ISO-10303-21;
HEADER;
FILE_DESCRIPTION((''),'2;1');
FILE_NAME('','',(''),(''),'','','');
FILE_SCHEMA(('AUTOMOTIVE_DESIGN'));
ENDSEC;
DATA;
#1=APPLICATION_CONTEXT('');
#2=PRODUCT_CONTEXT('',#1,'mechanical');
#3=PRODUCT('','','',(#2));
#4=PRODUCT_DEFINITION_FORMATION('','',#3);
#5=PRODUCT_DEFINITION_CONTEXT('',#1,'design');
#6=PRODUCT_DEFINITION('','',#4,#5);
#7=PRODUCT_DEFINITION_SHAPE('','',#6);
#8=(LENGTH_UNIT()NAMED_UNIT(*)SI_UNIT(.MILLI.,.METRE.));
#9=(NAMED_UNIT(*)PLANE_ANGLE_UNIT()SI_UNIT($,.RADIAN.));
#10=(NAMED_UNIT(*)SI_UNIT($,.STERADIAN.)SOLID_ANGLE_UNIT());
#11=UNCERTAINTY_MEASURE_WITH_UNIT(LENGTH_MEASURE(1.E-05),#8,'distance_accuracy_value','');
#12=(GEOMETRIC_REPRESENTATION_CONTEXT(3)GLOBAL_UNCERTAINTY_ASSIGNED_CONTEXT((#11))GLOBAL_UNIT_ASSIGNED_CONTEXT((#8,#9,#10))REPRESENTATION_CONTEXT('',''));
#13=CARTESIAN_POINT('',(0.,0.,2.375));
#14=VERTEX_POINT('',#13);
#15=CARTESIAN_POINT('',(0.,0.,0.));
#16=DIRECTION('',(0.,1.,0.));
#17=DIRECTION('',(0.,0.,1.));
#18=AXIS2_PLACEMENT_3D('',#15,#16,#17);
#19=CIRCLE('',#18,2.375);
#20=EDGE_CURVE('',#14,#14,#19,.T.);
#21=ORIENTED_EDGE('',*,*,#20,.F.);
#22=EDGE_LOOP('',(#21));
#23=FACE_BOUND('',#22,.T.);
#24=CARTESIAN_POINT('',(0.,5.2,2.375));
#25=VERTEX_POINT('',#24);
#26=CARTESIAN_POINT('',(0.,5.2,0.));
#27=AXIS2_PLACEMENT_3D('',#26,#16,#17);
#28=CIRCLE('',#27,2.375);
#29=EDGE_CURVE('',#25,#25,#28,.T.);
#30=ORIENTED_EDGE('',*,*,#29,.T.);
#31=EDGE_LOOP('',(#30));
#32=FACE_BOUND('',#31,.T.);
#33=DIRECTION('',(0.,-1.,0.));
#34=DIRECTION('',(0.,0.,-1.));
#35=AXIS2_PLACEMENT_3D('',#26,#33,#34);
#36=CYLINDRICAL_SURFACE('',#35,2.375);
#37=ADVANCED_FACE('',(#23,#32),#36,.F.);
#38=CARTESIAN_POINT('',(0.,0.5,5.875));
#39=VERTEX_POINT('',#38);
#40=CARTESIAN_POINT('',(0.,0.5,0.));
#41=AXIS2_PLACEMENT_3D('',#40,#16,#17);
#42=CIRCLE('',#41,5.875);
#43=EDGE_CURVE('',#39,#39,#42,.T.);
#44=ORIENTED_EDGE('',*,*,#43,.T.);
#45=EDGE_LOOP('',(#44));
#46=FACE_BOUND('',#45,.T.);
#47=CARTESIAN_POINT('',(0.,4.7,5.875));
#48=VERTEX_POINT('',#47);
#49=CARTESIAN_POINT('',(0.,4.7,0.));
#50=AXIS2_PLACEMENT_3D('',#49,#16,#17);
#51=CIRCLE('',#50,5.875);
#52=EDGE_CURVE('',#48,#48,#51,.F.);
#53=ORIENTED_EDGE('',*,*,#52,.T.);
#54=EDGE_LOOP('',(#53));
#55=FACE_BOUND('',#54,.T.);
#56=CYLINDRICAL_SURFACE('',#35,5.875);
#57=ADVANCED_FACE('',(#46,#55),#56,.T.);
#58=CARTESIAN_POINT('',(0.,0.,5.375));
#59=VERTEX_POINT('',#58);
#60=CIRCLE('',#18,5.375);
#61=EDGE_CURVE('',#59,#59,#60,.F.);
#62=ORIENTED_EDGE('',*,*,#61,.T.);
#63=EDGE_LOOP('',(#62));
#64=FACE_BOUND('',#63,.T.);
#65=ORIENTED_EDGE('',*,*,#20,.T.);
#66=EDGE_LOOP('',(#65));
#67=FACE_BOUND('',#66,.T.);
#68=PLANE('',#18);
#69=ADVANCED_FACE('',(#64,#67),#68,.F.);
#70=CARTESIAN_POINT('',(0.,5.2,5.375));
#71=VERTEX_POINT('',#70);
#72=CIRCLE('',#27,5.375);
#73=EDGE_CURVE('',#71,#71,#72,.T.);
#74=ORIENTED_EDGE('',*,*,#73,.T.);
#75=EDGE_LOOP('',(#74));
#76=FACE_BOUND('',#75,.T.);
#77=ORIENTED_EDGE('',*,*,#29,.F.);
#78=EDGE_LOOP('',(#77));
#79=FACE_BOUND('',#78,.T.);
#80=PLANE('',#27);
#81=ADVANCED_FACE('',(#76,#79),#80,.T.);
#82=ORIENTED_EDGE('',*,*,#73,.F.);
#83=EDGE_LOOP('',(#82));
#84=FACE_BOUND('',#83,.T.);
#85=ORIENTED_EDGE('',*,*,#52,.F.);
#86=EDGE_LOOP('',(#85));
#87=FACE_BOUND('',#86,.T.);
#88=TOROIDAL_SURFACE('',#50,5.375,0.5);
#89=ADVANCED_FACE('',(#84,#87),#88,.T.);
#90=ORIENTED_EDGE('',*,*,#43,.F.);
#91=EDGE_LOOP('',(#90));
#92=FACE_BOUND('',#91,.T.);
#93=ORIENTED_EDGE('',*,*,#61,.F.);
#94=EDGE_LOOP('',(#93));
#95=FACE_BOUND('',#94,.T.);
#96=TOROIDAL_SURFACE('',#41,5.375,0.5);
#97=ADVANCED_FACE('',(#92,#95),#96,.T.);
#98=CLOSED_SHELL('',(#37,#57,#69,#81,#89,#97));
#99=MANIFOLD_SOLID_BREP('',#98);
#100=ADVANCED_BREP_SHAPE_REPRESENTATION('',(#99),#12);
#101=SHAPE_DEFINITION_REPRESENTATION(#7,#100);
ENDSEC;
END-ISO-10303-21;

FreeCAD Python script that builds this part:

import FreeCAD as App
import Part
import Sketcher
from FreeCAD import Vector
Q = App.Units.Quantity


def edges_at(feature, points):
    """Names of the edges that pass closest to the given points."""
    edges = feature.Shape.Edges
    near = lambda p: min(range(len(edges)), key=lambda i: edges[i].distToShape(Part.Vertex(*p))[0])
    return sorted({f"Edge{near(p) + 1}" for p in points})

doc = App.newDocument("Part")
body = doc.addObject("PartDesign::Body", "Body")

# Sketch on XZ plane
sketch1 = body.newObject("Sketcher::SketchObject", "Sketch")
sketch1.AttachmentSupport = (doc.getObject("XZ_Plane"), [""])
sketch1.MapMode = "FlatFace"
sketch1.addGeometry([
    Part.Circle(Vector(0, 0, 0), Vector(0, 0, 1), 5.9),
    Part.Circle(Vector(0, 0, 0), Vector(0, 0, 1), 2.4),
], False)
sketch1.addConstraint([
    Sketcher.Constraint("Coincident", 0, 3, -1, 1),
    Sketcher.Constraint("Coincident", 1, 3, -1, 1),
    Sketcher.Constraint("Diameter", 0, Q("11.75 mm")),
    Sketcher.Constraint("Diameter", 1, Q("4.75 mm")),
])
pad1 = body.newObject("PartDesign::Pad", "Pad")
pad1.Profile = sketch1
pad1.Length = 5.2
pad1.Reversed = True
doc.recompute()

fillet = body.newObject("PartDesign::Fillet", "Fillet")
fillet.Base = (pad1, edges_at(pad1, [(0, 0, -5.875), (0, 5.2, -5.875)]))
fillet.Radius = 0.5

doc.recompute()
